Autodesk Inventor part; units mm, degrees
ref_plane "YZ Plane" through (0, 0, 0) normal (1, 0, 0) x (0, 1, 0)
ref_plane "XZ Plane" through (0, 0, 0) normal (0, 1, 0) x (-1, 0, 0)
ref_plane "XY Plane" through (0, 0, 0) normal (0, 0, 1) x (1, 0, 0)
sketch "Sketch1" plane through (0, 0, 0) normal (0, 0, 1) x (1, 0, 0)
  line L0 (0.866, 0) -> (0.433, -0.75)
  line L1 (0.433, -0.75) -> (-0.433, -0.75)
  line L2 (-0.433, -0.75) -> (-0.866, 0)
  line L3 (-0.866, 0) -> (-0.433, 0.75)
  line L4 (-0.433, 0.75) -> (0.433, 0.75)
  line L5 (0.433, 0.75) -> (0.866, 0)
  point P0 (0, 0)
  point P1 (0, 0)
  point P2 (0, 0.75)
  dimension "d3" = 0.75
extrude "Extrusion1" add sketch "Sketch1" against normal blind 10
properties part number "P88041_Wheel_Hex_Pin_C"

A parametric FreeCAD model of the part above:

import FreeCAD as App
import Part
import Sketcher
from FreeCAD import Vector
Q = App.Units.Quantity

doc = App.newDocument("Part")
body = doc.addObject("PartDesign::Body", "Body")

# Sketch on XY plane
sketch1 = body.newObject("Sketcher::SketchObject", "Sketch")
sketch1.AttachmentSupport = (doc.getObject("XY_Plane"), [""])
sketch1.MapMode = "FlatFace"
sketch1.addGeometry(Part.LineSegment(Vector(0.4, -0.8, 0), Vector(0.9, 0, 0)), False)
sketch1.addGeometry(Part.LineSegment(Vector(0.9, 0, 0), Vector(0.4, 0.8, 0)), False)
sketch1.addGeometry(Part.LineSegment(Vector(0.4, 0.8, 0), Vector(-0.4, 0.8, 0)), False)
sketch1.addGeometry(Part.LineSegment(Vector(-0.4, 0.8, 0), Vector(-0.9, 0, 0)), False)
sketch1.addGeometry(Part.LineSegment(Vector(-0.9, 0, 0), Vector(-0.4, -0.8, 0)), False)
sketch1.addGeometry(Part.LineSegment(Vector(-0.4, -0.8, 0), Vector(0.4, -0.8, 0)), False)
sketch1.addConstraint(Sketcher.Constraint("Coincident", 0, 2, 1, 1))
sketch1.addConstraint(Sketcher.Constraint("Coincident", 1, 2, 2, 1))
sketch1.addConstraint(Sketcher.Constraint("Coincident", 2, 2, 3, 1))
sketch1.addConstraint(Sketcher.Constraint("Coincident", 3, 2, 4, 1))
sketch1.addConstraint(Sketcher.Constraint("Coincident", 4, 2, 5, 1))
sketch1.addConstraint(Sketcher.Constraint("Coincident", 5, 2, 0, 1))
sketch1.addConstraint(Sketcher.Constraint("Horizontal", 2))
sketch1.addConstraint(Sketcher.Constraint("Horizontal", 5))
sketch1.addConstraint(Sketcher.Constraint("Symmetric", 0, 2, 3, 2, -1, 1))
sketch1.addConstraint(Sketcher.Constraint("Symmetric", 1, 2, 4, 2, -1, 1))
sketch1.addConstraint(Sketcher.Constraint("PointOnObject", 0, 2, -1))
sketch1.addConstraint(Sketcher.Constraint("Parallel", 0, 3))
sketch1.addConstraint(Sketcher.Constraint("Vertical", 2, 2, 4, 2))
sketch1.addConstraint(Sketcher.Constraint("DistanceY", -1, 1, 1, 2, Q("0.75 mm")))
sketch1.addConstraint(Sketcher.Constraint("Angle", 0, Q("60.0007 deg")))
sketch1.addConstraint(Sketcher.Constraint("DistanceX", 2, 2, 2, 1, Q("0.866 mm")))
pad1 = body.newObject("PartDesign::Pad", "Pad")
pad1.Profile = sketch1
pad1.Length = 10
pad1.Reversed = True

doc.recompute()
